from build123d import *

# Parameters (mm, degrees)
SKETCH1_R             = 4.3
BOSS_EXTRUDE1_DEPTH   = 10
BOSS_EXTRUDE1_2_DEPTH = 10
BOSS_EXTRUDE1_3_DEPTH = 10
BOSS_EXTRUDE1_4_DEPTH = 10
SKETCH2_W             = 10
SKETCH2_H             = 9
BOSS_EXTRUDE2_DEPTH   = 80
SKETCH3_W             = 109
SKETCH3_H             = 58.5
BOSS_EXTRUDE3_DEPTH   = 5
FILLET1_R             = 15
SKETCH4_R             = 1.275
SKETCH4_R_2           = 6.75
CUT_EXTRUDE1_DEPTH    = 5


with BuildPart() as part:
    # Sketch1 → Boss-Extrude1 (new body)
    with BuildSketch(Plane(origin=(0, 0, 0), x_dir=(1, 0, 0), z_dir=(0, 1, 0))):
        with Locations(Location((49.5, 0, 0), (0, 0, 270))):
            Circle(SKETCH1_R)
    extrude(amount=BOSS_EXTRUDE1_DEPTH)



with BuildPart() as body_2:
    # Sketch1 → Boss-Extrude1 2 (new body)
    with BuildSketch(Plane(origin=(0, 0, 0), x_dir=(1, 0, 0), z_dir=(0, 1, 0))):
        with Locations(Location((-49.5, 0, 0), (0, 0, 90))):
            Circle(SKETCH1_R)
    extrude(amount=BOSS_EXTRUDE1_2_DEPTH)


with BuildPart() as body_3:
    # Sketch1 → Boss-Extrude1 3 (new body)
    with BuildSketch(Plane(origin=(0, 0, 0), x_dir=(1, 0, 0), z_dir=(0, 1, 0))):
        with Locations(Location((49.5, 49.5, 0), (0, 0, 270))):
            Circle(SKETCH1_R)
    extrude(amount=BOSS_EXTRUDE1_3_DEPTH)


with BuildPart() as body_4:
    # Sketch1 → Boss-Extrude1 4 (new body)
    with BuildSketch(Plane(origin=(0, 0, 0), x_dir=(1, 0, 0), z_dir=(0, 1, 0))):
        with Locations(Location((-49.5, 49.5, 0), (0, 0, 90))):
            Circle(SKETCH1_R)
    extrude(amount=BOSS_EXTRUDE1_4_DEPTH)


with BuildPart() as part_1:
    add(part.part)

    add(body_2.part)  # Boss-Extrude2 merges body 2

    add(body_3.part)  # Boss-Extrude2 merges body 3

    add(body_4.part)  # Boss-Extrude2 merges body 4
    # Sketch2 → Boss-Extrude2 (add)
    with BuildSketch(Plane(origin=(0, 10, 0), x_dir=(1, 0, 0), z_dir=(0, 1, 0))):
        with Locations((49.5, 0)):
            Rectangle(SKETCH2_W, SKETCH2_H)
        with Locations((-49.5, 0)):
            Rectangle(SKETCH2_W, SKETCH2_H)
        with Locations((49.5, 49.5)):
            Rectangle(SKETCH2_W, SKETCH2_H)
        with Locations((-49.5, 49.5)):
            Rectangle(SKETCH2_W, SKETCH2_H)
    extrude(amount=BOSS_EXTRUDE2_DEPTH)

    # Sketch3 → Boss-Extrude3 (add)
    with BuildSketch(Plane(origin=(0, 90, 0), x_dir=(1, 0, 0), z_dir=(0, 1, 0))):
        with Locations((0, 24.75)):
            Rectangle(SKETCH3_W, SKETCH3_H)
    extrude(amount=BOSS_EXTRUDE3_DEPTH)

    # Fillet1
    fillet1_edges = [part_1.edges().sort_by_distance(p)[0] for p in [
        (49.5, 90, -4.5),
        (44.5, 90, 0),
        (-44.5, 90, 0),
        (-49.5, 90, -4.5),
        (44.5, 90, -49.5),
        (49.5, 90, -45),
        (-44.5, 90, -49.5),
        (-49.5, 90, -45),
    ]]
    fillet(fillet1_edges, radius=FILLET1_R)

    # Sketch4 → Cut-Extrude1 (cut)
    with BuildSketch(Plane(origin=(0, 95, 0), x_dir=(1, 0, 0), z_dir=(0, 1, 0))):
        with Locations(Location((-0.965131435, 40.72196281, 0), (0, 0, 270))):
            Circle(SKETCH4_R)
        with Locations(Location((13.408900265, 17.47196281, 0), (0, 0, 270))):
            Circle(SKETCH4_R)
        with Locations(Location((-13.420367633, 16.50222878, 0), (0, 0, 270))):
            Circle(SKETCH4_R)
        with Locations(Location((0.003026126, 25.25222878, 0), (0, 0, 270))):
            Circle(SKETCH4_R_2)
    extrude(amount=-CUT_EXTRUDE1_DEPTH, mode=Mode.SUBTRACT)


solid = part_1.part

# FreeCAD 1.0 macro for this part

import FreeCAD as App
import Part
import Sketcher
Q = App.Units.Quantity


def edges_at(feature, points):
    """Names of the edges that pass closest to the given points."""
    edges = feature.Shape.Edges
    near = lambda p: min(range(len(edges)), key=lambda i: edges[i].distToShape(Part.Vertex(*p))[0])
    return sorted({f"Edge{near(p) + 1}" for p in points})


def add_polygon(sketch, points):
    """Adds a closed chain of lines whose ends are joined by coincident constraints."""
    first, n = sketch.GeometryCount, len(points)
    for a, b in zip(points, points[1:] + points[:1]):
        sketch.addGeometry(Part.LineSegment(App.Vector(*a, 0), App.Vector(*b, 0)), False)
    for i in range(n):
        sketch.addConstraint(Sketcher.Constraint("Coincident", first + i, 2, first + (i + 1) % n, 1))

doc = App.newDocument("Part")
body = doc.addObject("PartDesign::Body", "Body")

# Sketch on XZ plane
sketch1 = body.newObject("Sketcher::SketchObject", "Sketch")
sketch1.AttachmentSupport = (doc.getObject("XZ_Plane"), [""])
sketch1.MapMode = "FlatFace"
sketch1.addGeometry(Part.Circle(App.Vector(49.5, 0, 0), App.Vector(0, 0, 1), 4.3), False)
sketch1.addConstraint([
    Sketcher.Constraint("PointOnObject", 0, 3, -1),
    Sketcher.Constraint("Diameter", 0, Q("8.6 mm")),
    Sketcher.Constraint("DistanceX", -1, 1, 0, 3, Q("49.5 mm")),
])
pad1 = body.newObject("PartDesign::Pad", "Pad")
pad1.Profile = sketch1
pad1.Length = 10
pad1.Reversed = True
body2 = doc.addObject("PartDesign::Body", "Body001")

# Sketch on XZ plane
sketch2 = body2.newObject("Sketcher::SketchObject", "Sketch001")
sketch2.AttachmentSupport = (doc.getObject("XZ_Plane001"), [""])
sketch2.MapMode = "FlatFace"
sketch2.addGeometry(Part.Circle(App.Vector(-49.5, 0, 0), App.Vector(0, 0, 1), 4.3), False)
sketch2.addConstraint([
    Sketcher.Constraint("PointOnObject", 0, 3, -1),
    Sketcher.Constraint("Diameter", 0, Q("8.6 mm")),
    Sketcher.Constraint("DistanceX", 0, 3, -1, 1, Q("49.5 mm")),
])
pad2 = body2.newObject("PartDesign::Pad", "Pad001")
pad2.Profile = sketch2
pad2.Length = 10
pad2.Reversed = True
body3 = doc.addObject("PartDesign::Body", "Body002")

# Sketch on XZ plane
sketch3 = body3.newObject("Sketcher::SketchObject", "Sketch002")
sketch3.AttachmentSupport = (doc.getObject("XZ_Plane002"), [""])
sketch3.MapMode = "FlatFace"
sketch3.addGeometry(Part.Circle(App.Vector(49.5, -49.5, 0), App.Vector(0, 0, 1), 4.3), False)
sketch3.addConstraint([
    Sketcher.Constraint("Diameter", 0, Q("8.6 mm")),
    Sketcher.Constraint("DistanceX", -1, 1, 0, 3, Q("49.5 mm")),
    Sketcher.Constraint("DistanceY", 0, 3, -1, 1, Q("49.5 mm")),
])
pad3 = body3.newObject("PartDesign::Pad", "Pad002")
pad3.Profile = sketch3
pad3.Length = 10
pad3.Reversed = True
body4 = doc.addObject("PartDesign::Body", "Body003")

# Sketch on XZ plane
sketch4 = body4.newObject("Sketcher::SketchObject", "Sketch003")
sketch4.AttachmentSupport = (doc.getObject("XZ_Plane003"), [""])
sketch4.MapMode = "FlatFace"
sketch4.addGeometry(Part.Circle(App.Vector(-49.5, -49.5, 0), App.Vector(0, 0, 1), 4.3), False)
sketch4.addConstraint([
    Sketcher.Constraint("Diameter", 0, Q("8.6 mm")),
    Sketcher.Constraint("DistanceX", 0, 3, -1, 1, Q("49.5 mm")),
    Sketcher.Constraint("DistanceY", 0, 3, -1, 1, Q("49.5 mm")),
])
pad4 = body4.newObject("PartDesign::Pad", "Pad003")
pad4.Profile = sketch4
pad4.Length = 10
pad4.Reversed = True
body.AllowCompound = True
doc.recompute()

boolean = body.newObject("PartDesign::Boolean", "Boolean")
boolean.Type = "Fuse"
boolean.addObjects([body2])
doc.recompute()

boolean2 = body.newObject("PartDesign::Boolean", "Boolean001")
boolean2.Type = "Fuse"
boolean2.addObjects([body3])
doc.recompute()

boolean3 = body.newObject("PartDesign::Boolean", "Boolean002")
boolean3.Type = "Fuse"
boolean3.addObjects([body4])

# Sketch on XZ plane
sketch5 = body.newObject("Sketcher::SketchObject", "Sketch004")
sketch5.AttachmentSupport = (doc.getObject("XZ_Plane"), [""])
sketch5.MapMode = "FlatFace"
sketch5.AttachmentOffset = App.Placement(App.Vector(0, 0, -10), App.Rotation())
add_polygon(sketch5, [(44, -4), (44, 4), (54, 4), (54, -4)])  # lines 0-3
add_polygon(sketch5, [(-54, -4), (-54, 4), (-44, 4), (-44, -4)])  # lines 4-7
add_polygon(sketch5, [(44, -54), (44, -45), (54, -45), (54, -54)])  # lines 8-11
add_polygon(sketch5, [(-54, -54), (-54, -45), (-44, -45), (-44, -54)])  # lines 12-15
sketch5.addConstraint([
    Sketcher.Constraint("Vertical", 0),
    Sketcher.Constraint("Horizontal", 1),
    Sketcher.Constraint("Vertical", 2),
    Sketcher.Constraint("Horizontal", 3),
    Sketcher.Constraint("Vertical", 4),
    Sketcher.Constraint("Horizontal", 5),
    Sketcher.Constraint("Vertical", 6),
    Sketcher.Constraint("Horizontal", 7),
    Sketcher.Constraint("Vertical", 8),
    Sketcher.Constraint("Horizontal", 9),
    Sketcher.Constraint("Vertical", 10),
    Sketcher.Constraint("Horizontal", 11),
    Sketcher.Constraint("Vertical", 12),
    Sketcher.Constraint("Horizontal", 13),
    Sketcher.Constraint("Vertical", 14),
    Sketcher.Constraint("Horizontal", 15),
    Sketcher.Constraint("Symmetric", 2, 2, 4, 2, -1, 1),
    Sketcher.Constraint("Symmetric", 0, 2, 6, 2, -1, 1),
    Sketcher.Constraint("Symmetric", 9, 2, 12, 2, -2),
    Sketcher.Constraint("Symmetric", 11, 2, 14, 2, -2),
    Sketcher.Constraint("Horizontal", 1, 2, 4, 2),
    Sketcher.Constraint("Vertical", 3, 2, 8, 2),
    Sketcher.Constraint("Vertical", 2, 2, 9, 2),
    Sketcher.Constraint("Equal", 6, 8),
    Sketcher.Constraint("DistanceX", 1, 1, 1, 2, Q("10 mm")),
    Sketcher.Constraint("DistanceY", 0, 1, 0, 2, Q("9 mm")),
    Sketcher.Constraint("DistanceY", 8, 2, -1, 1, Q("45 mm")),
    Sketcher.Constraint("DistanceX", 4, 2, 0, 2, Q("99 mm")),
])
pad5 = body.newObject("PartDesign::Pad", "Pad004")
pad5.Profile = sketch5
pad5.Length = 80
pad5.Reversed = True

# Sketch on XZ plane
sketch6 = body.newObject("Sketcher::SketchObject", "Sketch005")
sketch6.AttachmentSupport = (doc.getObject("XZ_Plane"), [""])
sketch6.MapMode = "FlatFace"
sketch6.AttachmentOffset = App.Placement(App.Vector(0, 0, -90), App.Rotation())
add_polygon(sketch6, [(-54, -54), (-54, 4), (54, 4), (54, -54)])  # lines 0-3
sketch6.addConstraint([
    Sketcher.Constraint("Vertical", 0),
    Sketcher.Constraint("Horizontal", 1),
    Sketcher.Constraint("Vertical", 2),
    Sketcher.Constraint("Horizontal", 3),
    Sketcher.Constraint("DistanceX", 1, 1, 1, 2, Q("109 mm")),
    Sketcher.Constraint("DistanceY", 0, 1, 0, 2, Q("58.5 mm")),
    Sketcher.Constraint("DistanceY", 2, 2, -1, 1, Q("54 mm")),
    Sketcher.Constraint("DistanceX", 0, 2, -1, 1, Q("54.5 mm")),
])
pad6 = body.newObject("PartDesign::Pad", "Pad005")
pad6.Profile = sketch6
pad6.Length = 5
pad6.Reversed = True
doc.recompute()

fillet = body.newObject("PartDesign::Fillet", "Fillet")
fillet.Base = (pad6, edges_at(pad6, [
    (49.5, 90, -4.5),
    (44.5, 90, 0),
    (-44.5, 90, 0),
    (-49.5, 90, -4.5),
    (44.5, 90, -49.5),
    (49.5, 90, -45),
    (-44.5, 90, -49.5),
    (-49.5, 90, -45),
]))
fillet.Radius = 15

# Sketch on XZ plane
sketch7 = body.newObject("Sketcher::SketchObject", "Sketch006")
sketch7.AttachmentSupport = (doc.getObject("XZ_Plane"), [""])
sketch7.MapMode = "FlatFace"
sketch7.AttachmentOffset = App.Placement(App.Vector(0, 0, -95), App.Rotation())
sketch7.addGeometry([
    Part.Circle(App.Vector(-1, -40.7, 0), App.Vector(0, 0, 1), 1.3),
    Part.Circle(App.Vector(13.4, -17.5, 0), App.Vector(0, 0, 1), 1.3),
    Part.Circle(App.Vector(-13.4, -16.5, 0), App.Vector(0, 0, 1), 1.3),
    Part.Circle(App.Vector(0, -25.3, 0), App.Vector(0, 0, 1), 6.8),
], False)
sketch7.addConstraint([
    Sketcher.Constraint("Equal", 0, 1),
    Sketcher.Constraint("Equal", 1, 2),
    Sketcher.Constraint("Diameter", 3, Q("13.5 mm")),
    Sketcher.Constraint("Diameter", 0, Q("2.55 mm")),
    Sketcher.Constraint("DistanceY", 0, 3, 1, 3, Q("23.25 mm")),
    Sketcher.Constraint("DistanceY", 3, 3, 2, 3, Q("8.75 mm")),
    Sketcher.Constraint("DistanceX", -1, 1, 1, 3, Q("13.4089 mm")),
    Sketcher.Constraint("DistanceX", 0, 3, -1, 1, Q("0.965131 mm")),
    Sketcher.Constraint("DistanceY", 2, 3, -1, 1, Q("16.502229 mm")),
    Sketcher.Constraint("DistanceY", 0, 3, -1, 1, Q("40.721963 mm")),
    Sketcher.Constraint("DistanceX", 2, 3, -1, 1, Q("13.420368 mm")),
    Sketcher.Constraint("DistanceX", -1, 1, 3, 3, Q("0.003026 mm")),
])
pocket1 = body.newObject("PartDesign::Pocket", "Pocket")
pocket1.Profile = sketch7
pocket1.Length = 5
pocket1.Reversed = True

doc.recompute()
